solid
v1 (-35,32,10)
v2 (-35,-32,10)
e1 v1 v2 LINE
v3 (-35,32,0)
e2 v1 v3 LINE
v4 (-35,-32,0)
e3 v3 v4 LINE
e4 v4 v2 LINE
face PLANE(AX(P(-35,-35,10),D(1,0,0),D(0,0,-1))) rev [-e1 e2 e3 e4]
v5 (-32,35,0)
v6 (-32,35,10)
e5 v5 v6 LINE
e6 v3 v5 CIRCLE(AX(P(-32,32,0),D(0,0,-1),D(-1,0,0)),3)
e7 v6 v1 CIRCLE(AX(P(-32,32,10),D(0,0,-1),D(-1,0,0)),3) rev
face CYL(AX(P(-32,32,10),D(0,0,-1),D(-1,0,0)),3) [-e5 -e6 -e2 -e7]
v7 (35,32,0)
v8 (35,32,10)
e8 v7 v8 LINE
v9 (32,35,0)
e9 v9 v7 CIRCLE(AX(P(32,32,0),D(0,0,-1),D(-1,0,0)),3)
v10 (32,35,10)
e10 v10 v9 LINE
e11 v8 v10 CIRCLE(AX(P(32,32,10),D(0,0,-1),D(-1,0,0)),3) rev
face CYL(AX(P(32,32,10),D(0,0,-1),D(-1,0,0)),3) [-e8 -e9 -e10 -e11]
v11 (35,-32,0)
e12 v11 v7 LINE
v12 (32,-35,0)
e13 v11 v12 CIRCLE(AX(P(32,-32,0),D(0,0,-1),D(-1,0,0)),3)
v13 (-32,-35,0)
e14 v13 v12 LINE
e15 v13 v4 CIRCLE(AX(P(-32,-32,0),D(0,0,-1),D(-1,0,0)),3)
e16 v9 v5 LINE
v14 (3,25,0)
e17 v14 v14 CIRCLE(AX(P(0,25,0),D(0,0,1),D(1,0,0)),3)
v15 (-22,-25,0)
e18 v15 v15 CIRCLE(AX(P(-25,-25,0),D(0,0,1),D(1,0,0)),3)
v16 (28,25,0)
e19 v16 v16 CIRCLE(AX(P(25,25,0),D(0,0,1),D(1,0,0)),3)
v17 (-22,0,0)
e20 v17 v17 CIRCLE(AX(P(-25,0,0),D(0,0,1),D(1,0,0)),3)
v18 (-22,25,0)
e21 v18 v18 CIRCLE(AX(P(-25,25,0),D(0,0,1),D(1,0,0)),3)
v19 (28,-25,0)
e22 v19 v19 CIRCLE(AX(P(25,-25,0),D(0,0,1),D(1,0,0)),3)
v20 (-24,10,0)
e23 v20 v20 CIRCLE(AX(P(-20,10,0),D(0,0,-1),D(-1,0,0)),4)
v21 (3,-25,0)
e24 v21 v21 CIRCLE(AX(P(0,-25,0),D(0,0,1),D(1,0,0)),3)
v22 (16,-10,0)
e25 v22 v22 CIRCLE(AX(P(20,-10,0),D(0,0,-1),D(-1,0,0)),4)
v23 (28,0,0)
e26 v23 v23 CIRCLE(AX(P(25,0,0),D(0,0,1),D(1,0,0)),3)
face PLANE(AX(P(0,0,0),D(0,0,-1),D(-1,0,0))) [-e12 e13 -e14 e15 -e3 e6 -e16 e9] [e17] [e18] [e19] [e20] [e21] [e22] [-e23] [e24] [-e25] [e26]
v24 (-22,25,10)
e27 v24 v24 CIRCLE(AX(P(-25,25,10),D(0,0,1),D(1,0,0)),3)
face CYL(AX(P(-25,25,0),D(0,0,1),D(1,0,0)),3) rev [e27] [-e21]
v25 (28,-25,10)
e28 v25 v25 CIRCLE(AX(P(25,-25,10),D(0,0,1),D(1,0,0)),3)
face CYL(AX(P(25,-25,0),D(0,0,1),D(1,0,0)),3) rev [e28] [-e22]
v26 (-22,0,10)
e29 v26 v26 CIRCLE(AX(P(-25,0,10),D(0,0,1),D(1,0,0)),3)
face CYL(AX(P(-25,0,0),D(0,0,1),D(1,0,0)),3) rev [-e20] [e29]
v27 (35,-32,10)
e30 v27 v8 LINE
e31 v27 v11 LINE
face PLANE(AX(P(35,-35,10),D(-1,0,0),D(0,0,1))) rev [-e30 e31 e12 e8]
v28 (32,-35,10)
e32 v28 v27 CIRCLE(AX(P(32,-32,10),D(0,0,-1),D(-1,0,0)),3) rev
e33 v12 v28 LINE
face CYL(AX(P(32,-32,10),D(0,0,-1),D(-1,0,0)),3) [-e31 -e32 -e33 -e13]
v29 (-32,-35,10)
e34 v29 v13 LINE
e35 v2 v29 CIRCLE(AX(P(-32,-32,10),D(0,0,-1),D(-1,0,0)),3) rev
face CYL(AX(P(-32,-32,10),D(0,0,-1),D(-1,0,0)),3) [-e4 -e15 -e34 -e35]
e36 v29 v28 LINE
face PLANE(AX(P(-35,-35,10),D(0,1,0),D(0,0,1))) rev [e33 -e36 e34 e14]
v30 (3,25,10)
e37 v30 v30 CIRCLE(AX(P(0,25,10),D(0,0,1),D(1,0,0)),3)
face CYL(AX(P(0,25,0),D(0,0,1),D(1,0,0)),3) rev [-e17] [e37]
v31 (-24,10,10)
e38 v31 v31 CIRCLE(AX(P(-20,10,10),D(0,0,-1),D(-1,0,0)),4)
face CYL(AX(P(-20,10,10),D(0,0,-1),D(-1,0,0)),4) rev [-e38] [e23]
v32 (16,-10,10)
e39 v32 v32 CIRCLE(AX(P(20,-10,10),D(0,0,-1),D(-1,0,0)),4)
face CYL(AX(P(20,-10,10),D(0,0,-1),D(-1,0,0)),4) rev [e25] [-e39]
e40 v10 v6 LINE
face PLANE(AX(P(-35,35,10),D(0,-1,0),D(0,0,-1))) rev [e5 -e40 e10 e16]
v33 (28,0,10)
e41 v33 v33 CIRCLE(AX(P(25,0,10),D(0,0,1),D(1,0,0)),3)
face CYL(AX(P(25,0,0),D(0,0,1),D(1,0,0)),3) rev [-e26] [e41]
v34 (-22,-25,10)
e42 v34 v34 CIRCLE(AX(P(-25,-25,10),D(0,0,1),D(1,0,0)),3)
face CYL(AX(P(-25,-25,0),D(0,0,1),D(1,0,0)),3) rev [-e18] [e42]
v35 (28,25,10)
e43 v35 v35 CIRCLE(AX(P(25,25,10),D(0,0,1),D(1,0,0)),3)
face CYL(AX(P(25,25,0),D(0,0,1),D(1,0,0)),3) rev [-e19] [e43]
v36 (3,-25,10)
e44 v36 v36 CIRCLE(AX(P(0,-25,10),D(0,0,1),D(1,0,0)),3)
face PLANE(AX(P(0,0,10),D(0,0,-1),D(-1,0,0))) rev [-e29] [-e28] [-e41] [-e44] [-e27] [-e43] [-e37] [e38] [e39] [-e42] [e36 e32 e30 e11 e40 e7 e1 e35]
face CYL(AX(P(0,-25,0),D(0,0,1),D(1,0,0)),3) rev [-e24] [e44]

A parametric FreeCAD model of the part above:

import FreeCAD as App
import Part
import Sketcher
Q = App.Units.Quantity


def edges_at(feature, points):
    """Names of the edges that pass closest to the given points."""
    edges = feature.Shape.Edges
    near = lambda p: min(range(len(edges)), key=lambda i: edges[i].distToShape(Part.Vertex(*p))[0])
    return sorted({f"Edge{near(p) + 1}" for p in points})


def add_polygon(sketch, points):
    """Adds a closed chain of lines whose ends are joined by coincident constraints."""
    first, n = sketch.GeometryCount, len(points)
    for a, b in zip(points, points[1:] + points[:1]):
        sketch.addGeometry(Part.LineSegment(App.Vector(*a, 0), App.Vector(*b, 0)), False)
    for i in range(n):
        sketch.addConstraint(Sketcher.Constraint("Coincident", first + i, 2, first + (i + 1) % n, 1))

doc = App.newDocument("Part")
body = doc.addObject("PartDesign::Body", "Body")

# Sketch on XY plane
sketch1 = body.newObject("Sketcher::SketchObject", "Sketch")
sketch1.AttachmentSupport = (doc.getObject("XY_Plane"), [""])
sketch1.MapMode = "FlatFace"
add_polygon(sketch1, [(-35, 35), (-35, -35), (35, -35), (35, 35)])  # lines 0-3
sketch1.addConstraint([
    Sketcher.Constraint("Vertical", 0),
    Sketcher.Constraint("Horizontal", 1),
    Sketcher.Constraint("Vertical", 2),
    Sketcher.Constraint("Horizontal", 3),
    Sketcher.Constraint("Symmetric", 0, 2, 2, 2, -1, 1),
    Sketcher.Constraint("Equal", 3, 0),
    Sketcher.Constraint("DistanceX", 1, 1, 1, 2, Q("70 mm")),
])
pad1 = body.newObject("PartDesign::Pad", "Pad")
pad1.Profile = sketch1
pad1.Length = 10

# Sketch on XY plane
sketch2 = body.newObject("Sketcher::SketchObject", "Sketch001")
sketch2.AttachmentSupport = (doc.getObject("XY_Plane"), [""])
sketch2.MapMode = "FlatFace"
sketch2.AttachmentOffset = App.Placement(App.Vector(0, 0, 10), App.Rotation())
sketch2.addGeometry([
    Part.Circle(App.Vector(0, 25, 0), App.Vector(0, 0, 1), 3),  # 0
    Part.Circle(App.Vector(25, 25, 0), App.Vector(0, 0, 1), 3),  # 1
    Part.Circle(App.Vector(25, 0, 0), App.Vector(0, 0, 1), 3),  # 2
    Part.Circle(App.Vector(-25, 0, 0), App.Vector(0, 0, 1), 3),  # 3
    Part.Circle(App.Vector(-25, 25, 0), App.Vector(0, 0, 1), 3),  # 4
    Part.Circle(App.Vector(-25, -25, 0), App.Vector(0, 0, 1), 3),  # 5
    Part.Circle(App.Vector(0, -25, 0), App.Vector(0, 0, 1), 3),  # 6
    Part.Circle(App.Vector(25, -25, 0), App.Vector(0, 0, 1), 3),  # 7
], False)
sketch2.addConstraint([
    Sketcher.Constraint("Equal", 0, 1),
    Sketcher.Constraint("Equal", 1, 2),
    Sketcher.Constraint("Equal", 2, 3),
    Sketcher.Constraint("Equal", 3, 4),
    Sketcher.Constraint("Equal", 4, 5),
    Sketcher.Constraint("Equal", 5, 6),
    Sketcher.Constraint("Equal", 6, 7),
    Sketcher.Constraint("Symmetric", 2, 3, 3, 3, -1, 1),
    Sketcher.Constraint("Symmetric", 1, 3, 5, 3, -1, 1),
    Sketcher.Constraint("Symmetric", 0, 3, 6, 3, -1, 1),
    Sketcher.Constraint("Symmetric", 4, 3, 7, 3, -1, 1),
    Sketcher.Constraint("Symmetric", 1, 3, 4, 3, -2),
    Sketcher.Constraint("PointOnObject", 0, 3, -2),
    Sketcher.Constraint("PointOnObject", 2, 3, -1),
    Sketcher.Constraint("Horizontal", 0, 3, 1, 3),
    Sketcher.Constraint("Vertical", 1, 3, 2, 3),
    Sketcher.Constraint("Diameter", 0, Q("6 mm")),
    Sketcher.Constraint("DistanceY", -1, 1, 0, 3, Q("25 mm")),
    Sketcher.Constraint("DistanceX", -1, 1, 1, 3, Q("25 mm")),
])
pocket1 = body.newObject("PartDesign::Pocket", "Pocket")
pocket1.Profile = sketch2
pocket1.Length = 10
doc.recompute()

fillet = body.newObject("PartDesign::Fillet", "Fillet")
fillet.Base = (pocket1, edges_at(pocket1, [
    (35, -35, 5),
    (-35, -35, 5),
    (-35, 35, 5),
    (35, 35, 5),
]))
fillet.Radius = 3

# Sketch on XY plane
sketch3 = body.newObject("Sketcher::SketchObject", "Sketch002")
sketch3.AttachmentSupport = (doc.getObject("XY_Plane"), [""])
sketch3.MapMode = "FlatFace"
sketch3.addGeometry([
    Part.Circle(App.Vector(-20, 10, 0), App.Vector(0, 0, 1), 4),
    Part.Circle(App.Vector(20, -10, 0), App.Vector(0, 0, 1), 4),
], False)
sketch3.addConstraint([
    Sketcher.Constraint("Equal", 0, 1),
    Sketcher.Constraint("Symmetric", 0, 3, 1, 3, -1, 1),
    Sketcher.Constraint("Diameter", 0, Q("8 mm")),
    Sketcher.Constraint("DistanceX", 0, 3, -1, 1, Q("20 mm")),
    Sketcher.Constraint("DistanceY", -1, 1, 0, 3, Q("10 mm")),
])
pocket2 = body.newObject("PartDesign::Pocket", "Pocket001")
pocket2.Profile = sketch3
pocket2.Length = 10
pocket2.Reversed = True

doc.recompute()
